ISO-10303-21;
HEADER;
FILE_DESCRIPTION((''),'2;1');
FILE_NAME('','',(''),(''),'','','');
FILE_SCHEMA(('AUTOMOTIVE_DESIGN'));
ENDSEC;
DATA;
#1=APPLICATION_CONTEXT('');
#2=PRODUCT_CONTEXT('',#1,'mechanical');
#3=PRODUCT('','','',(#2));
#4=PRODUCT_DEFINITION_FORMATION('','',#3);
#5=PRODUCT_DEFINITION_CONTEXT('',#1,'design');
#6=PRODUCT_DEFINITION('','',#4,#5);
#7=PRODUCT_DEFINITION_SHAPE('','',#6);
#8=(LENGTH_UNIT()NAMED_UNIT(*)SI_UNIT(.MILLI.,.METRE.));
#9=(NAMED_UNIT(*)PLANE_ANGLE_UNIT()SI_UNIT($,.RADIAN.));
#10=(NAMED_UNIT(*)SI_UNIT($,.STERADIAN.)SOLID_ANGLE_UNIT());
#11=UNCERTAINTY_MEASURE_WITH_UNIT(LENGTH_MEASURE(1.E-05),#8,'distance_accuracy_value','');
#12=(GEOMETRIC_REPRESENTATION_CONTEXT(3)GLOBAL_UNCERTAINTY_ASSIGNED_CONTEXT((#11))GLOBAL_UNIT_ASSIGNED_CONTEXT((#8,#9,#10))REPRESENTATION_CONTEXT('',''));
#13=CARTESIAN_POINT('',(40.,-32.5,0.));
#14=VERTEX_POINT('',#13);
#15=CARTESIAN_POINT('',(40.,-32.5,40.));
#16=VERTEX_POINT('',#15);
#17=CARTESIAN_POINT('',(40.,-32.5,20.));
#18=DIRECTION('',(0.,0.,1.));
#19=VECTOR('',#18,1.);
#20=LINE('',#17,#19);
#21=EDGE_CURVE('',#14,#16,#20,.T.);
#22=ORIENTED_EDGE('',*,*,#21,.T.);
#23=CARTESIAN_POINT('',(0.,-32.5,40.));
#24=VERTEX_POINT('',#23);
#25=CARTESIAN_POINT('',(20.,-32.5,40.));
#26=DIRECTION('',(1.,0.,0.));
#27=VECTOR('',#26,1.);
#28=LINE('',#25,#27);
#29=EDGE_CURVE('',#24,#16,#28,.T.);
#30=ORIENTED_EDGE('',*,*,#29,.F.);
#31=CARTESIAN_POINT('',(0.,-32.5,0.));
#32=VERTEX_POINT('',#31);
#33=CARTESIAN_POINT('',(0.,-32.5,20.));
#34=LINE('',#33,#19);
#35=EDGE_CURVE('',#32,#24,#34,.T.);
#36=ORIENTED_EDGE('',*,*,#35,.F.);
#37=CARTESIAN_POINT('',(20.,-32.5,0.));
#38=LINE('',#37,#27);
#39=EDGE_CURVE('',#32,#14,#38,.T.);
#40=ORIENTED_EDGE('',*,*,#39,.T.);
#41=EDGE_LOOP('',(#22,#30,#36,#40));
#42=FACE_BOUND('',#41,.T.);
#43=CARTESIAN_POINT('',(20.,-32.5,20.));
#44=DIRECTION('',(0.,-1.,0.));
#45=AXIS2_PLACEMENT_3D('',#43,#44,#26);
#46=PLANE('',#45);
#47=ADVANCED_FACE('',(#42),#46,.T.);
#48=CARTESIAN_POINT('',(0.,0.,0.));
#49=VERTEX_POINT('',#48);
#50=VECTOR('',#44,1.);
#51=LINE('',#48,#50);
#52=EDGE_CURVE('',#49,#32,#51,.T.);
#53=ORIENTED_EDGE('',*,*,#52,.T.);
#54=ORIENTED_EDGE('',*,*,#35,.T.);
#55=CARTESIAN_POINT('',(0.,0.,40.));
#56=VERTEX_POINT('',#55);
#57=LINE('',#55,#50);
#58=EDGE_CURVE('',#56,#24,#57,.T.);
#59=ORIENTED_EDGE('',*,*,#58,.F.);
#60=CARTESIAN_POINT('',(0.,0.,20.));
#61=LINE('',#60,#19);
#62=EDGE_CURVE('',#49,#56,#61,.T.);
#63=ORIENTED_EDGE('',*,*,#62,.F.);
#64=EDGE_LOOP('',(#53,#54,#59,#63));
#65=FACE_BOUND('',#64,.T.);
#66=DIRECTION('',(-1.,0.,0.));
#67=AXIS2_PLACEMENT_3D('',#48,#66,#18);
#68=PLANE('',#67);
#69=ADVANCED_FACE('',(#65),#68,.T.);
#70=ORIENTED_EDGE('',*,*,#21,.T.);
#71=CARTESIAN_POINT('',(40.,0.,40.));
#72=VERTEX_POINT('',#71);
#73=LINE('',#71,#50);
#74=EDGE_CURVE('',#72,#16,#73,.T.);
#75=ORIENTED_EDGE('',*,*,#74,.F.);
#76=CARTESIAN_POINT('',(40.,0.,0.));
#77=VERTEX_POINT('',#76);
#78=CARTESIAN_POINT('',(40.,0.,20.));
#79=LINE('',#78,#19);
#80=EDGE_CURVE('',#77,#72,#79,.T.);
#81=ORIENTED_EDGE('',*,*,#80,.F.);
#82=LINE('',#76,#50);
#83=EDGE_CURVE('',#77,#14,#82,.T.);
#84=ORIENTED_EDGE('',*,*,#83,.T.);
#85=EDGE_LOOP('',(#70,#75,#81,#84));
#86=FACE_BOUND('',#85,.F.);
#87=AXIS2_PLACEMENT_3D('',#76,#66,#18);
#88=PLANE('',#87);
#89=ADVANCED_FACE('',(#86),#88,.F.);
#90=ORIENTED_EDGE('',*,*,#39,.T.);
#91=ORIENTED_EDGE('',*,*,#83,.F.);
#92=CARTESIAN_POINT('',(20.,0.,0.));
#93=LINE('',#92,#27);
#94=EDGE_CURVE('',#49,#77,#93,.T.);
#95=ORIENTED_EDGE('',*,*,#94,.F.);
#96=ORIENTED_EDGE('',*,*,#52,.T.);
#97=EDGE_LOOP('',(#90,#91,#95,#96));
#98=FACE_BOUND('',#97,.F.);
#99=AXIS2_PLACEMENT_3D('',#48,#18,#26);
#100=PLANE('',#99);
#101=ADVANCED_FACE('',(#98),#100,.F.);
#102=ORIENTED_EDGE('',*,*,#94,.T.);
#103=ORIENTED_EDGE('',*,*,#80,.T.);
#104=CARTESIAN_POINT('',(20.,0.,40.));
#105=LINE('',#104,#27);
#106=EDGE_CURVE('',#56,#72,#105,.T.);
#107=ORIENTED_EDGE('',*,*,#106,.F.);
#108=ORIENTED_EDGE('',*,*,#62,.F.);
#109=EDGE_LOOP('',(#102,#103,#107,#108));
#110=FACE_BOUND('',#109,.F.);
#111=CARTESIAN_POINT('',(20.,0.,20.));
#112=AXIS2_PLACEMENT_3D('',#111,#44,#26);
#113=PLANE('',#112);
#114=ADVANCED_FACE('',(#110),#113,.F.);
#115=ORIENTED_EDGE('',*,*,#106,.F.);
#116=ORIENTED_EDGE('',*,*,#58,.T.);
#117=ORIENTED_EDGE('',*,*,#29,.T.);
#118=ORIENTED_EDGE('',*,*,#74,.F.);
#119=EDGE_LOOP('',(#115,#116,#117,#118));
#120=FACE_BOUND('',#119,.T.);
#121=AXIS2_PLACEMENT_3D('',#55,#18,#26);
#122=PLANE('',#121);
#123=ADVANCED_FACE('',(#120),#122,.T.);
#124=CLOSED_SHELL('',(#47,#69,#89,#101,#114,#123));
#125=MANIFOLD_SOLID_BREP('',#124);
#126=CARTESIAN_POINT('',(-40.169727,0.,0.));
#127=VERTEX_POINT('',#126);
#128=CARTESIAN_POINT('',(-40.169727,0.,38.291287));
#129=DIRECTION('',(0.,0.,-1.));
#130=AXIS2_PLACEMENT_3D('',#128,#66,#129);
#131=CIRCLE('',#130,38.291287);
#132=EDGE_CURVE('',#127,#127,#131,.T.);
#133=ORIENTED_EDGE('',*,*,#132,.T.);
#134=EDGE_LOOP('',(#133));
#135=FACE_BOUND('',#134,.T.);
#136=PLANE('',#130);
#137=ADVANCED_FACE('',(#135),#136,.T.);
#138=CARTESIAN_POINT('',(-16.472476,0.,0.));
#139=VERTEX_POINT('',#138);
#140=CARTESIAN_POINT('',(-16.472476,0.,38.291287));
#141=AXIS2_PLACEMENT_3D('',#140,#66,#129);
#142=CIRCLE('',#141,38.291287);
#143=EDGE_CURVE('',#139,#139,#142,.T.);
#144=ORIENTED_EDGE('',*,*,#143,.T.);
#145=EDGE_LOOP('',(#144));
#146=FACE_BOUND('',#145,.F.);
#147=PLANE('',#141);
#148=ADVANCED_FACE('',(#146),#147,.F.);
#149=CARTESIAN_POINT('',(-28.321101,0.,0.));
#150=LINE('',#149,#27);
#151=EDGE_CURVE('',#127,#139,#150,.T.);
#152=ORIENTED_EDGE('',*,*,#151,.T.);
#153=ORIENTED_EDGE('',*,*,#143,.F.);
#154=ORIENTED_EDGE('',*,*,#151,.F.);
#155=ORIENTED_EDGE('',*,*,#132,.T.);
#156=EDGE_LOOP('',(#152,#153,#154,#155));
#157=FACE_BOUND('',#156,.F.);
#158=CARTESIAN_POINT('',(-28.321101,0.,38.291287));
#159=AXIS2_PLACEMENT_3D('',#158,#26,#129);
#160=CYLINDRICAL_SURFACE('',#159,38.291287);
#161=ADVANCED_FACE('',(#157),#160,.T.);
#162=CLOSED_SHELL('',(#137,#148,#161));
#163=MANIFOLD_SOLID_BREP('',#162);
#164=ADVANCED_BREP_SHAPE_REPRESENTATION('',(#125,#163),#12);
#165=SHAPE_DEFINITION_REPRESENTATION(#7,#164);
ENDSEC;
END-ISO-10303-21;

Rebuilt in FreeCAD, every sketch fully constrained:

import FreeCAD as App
import Part
import Sketcher


def add_polygon(sketch, points):
    """Adds a closed chain of lines whose ends are joined by coincident constraints."""
    first, n = sketch.GeometryCount, len(points)
    for a, b in zip(points, points[1:] + points[:1]):
        sketch.addGeometry(Part.LineSegment(App.Vector(*a, 0), App.Vector(*b, 0)), False)
    for i in range(n):
        sketch.addConstraint(Sketcher.Constraint("Coincident", first + i, 2, first + (i + 1) % n, 1))

doc = App.newDocument("Part")
body = doc.addObject("PartDesign::Body", "Body")

# Sketch on XZ plane
sketch1 = doc.addObject("Sketcher::SketchObject", "Sketch")
body.addObject(sketch1)
sketch1.AttachmentSupport = (doc.XZ_Plane, [""])
sketch1.MapMode = "FlatFace"
add_polygon(sketch1, [(0, 40), (0, 0), (40, 0), (40, 40)])  # lines 0-3
sketch1.addConstraint([
    Sketcher.Constraint("Vertical", 0),
    Sketcher.Constraint("Horizontal", 1),
    Sketcher.Constraint("Vertical", 2),
    Sketcher.Constraint("Horizontal", 3),
    Sketcher.Constraint("Coincident", 0, 2, -1, 1),
    Sketcher.Constraint("Equal", 3, 0),
    Sketcher.Constraint("DistanceX", 1, 1, 1, 2, 40.0),
])
pad1 = doc.addObject("PartDesign::Pad", "Pad")
body.addObject(pad1)
pad1.Profile = sketch1
pad1.Length = 32.5
body2 = doc.addObject("PartDesign::Body", "Body001")

# Sketch on XZ plane
sketch2 = doc.addObject("Sketcher::SketchObject", "Sketch001")
body2.addObject(sketch2)
sketch2.AttachmentSupport = (doc.getObject("XZ_Plane001"), [""])
sketch2.MapMode = "FlatFace"
add_polygon(sketch2, [(-40, 38), (-40, 0), (-16, 0), (-16, 38)])  # lines 0-3
sketch2.addGeometry(Part.LineSegment(App.Vector(-16, 38, 0), App.Vector(-40, 38, 0)), True)  # axis
sketch2.addConstraint([
    Sketcher.Constraint("Vertical", 0),
    Sketcher.Constraint("Horizontal", 1),
    Sketcher.Constraint("Vertical", 2),
    Sketcher.Constraint("Horizontal", 3),
    Sketcher.Constraint("Horizontal", 4),
    Sketcher.Constraint("Coincident", 4, 1, 2, 2),
    Sketcher.Constraint("PointOnObject", 0, 2, -1),
    Sketcher.Constraint("Vertical", 0, 2, 4, 2),
    Sketcher.Constraint("DistanceX", 1, 1, 1, 2, 23.697251),
    Sketcher.Constraint("DistanceY", 0, 2, 0, 1, 38.291287),
    Sketcher.Constraint("DistanceX", 0, 2, -1, 1, 40.169727),
])
revolution = doc.addObject("PartDesign::Revolution", "Revolution")
body2.addObject(revolution)
revolution.Profile = sketch2
revolution.ReferenceAxis = (sketch2, ["Axis0"])
revolution.Angle = 360

doc.recompute()
